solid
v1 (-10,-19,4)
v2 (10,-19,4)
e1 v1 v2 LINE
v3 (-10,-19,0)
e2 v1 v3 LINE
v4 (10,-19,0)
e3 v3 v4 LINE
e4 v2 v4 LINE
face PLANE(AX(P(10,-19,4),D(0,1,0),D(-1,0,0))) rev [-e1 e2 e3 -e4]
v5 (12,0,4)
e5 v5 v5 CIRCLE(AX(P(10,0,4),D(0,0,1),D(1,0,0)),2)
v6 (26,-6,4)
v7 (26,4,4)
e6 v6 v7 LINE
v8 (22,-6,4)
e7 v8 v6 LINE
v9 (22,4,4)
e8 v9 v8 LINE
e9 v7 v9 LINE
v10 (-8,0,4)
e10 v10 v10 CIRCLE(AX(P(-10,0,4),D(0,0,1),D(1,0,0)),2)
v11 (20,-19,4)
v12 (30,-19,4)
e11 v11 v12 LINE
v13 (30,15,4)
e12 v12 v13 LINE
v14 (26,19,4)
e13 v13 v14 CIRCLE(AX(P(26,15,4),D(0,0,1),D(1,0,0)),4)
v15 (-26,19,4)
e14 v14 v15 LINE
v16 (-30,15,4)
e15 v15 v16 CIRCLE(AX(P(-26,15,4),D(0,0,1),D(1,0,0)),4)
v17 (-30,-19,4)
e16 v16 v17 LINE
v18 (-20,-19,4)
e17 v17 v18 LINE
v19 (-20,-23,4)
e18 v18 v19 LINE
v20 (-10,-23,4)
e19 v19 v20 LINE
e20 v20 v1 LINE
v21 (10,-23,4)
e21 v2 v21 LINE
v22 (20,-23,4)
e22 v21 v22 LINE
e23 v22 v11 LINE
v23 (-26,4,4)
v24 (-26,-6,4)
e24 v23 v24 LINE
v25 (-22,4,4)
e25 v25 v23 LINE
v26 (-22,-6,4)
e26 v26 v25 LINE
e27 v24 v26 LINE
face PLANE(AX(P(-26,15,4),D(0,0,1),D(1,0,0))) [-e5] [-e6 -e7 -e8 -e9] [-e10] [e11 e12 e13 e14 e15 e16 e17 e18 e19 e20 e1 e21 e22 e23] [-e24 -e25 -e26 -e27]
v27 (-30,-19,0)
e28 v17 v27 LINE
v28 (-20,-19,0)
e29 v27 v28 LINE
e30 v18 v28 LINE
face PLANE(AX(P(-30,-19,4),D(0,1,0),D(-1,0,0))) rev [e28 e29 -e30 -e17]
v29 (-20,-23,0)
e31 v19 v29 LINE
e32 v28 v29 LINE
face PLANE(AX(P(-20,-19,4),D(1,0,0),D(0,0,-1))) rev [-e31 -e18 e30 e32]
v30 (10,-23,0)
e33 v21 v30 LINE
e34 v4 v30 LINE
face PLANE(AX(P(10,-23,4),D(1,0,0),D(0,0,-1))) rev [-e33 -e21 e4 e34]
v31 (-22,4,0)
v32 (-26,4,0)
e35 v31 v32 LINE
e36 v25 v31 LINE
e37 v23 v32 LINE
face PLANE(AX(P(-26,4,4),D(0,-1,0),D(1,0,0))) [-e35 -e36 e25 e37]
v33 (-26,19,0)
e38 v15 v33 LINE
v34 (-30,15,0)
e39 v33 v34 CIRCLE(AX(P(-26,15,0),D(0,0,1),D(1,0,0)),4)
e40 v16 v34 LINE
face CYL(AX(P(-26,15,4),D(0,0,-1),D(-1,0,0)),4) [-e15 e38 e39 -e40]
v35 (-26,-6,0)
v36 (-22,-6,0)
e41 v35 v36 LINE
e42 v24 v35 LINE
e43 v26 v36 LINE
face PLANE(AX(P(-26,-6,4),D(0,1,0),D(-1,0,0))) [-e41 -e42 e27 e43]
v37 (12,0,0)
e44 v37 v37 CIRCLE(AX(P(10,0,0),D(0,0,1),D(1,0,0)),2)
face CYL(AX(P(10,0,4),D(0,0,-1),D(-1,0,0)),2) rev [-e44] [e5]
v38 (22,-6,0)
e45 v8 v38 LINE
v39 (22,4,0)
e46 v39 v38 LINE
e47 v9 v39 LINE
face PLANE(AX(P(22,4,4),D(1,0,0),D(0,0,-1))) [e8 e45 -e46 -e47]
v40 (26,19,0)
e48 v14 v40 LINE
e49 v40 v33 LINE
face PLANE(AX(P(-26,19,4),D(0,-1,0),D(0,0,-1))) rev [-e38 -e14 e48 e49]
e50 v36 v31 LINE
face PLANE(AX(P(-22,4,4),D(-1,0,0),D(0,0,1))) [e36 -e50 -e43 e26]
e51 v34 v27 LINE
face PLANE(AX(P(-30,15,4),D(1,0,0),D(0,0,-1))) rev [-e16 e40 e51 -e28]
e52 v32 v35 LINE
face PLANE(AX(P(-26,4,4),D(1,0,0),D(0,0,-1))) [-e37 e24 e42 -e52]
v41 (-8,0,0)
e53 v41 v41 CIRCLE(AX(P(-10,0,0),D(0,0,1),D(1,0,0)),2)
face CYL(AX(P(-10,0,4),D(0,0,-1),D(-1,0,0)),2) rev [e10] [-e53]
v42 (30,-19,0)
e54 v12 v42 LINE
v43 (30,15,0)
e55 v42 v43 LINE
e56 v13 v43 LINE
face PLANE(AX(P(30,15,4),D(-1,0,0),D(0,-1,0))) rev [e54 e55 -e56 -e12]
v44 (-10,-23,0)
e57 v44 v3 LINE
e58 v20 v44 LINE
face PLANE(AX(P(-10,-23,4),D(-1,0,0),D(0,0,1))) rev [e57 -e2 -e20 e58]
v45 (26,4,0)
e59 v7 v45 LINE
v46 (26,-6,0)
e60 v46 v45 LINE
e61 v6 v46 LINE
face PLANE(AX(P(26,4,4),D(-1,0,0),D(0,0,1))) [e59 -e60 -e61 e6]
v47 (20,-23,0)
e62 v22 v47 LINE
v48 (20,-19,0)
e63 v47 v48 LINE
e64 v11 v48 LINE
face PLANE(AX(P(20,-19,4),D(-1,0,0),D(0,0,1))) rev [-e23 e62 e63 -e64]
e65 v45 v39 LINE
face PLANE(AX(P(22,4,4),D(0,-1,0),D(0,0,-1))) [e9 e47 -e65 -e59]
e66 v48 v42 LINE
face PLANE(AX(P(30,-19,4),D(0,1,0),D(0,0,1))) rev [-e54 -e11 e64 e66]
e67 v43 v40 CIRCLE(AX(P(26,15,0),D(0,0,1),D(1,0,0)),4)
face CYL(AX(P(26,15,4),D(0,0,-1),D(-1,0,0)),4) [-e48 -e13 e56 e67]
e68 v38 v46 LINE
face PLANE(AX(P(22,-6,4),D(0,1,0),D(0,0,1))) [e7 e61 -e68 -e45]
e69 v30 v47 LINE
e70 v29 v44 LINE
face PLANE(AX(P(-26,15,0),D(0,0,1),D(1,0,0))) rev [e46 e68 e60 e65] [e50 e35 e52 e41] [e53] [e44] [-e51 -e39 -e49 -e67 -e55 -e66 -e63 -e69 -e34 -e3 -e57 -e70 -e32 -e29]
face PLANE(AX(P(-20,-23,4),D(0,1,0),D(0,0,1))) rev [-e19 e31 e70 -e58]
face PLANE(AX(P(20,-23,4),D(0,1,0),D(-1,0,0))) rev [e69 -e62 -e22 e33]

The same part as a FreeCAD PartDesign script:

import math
import FreeCAD as App
import Part
import Sketcher
Q = App.Units.Quantity


def add_polygon(sketch, points):
    """Adds a closed chain of lines whose ends are joined by coincident constraints."""
    first, n = sketch.GeometryCount, len(points)
    for a, b in zip(points, points[1:] + points[:1]):
        sketch.addGeometry(Part.LineSegment(App.Vector(*a, 0), App.Vector(*b, 0)), False)
    for i in range(n):
        sketch.addConstraint(Sketcher.Constraint("Coincident", first + i, 2, first + (i + 1) % n, 1))

doc = App.newDocument("Part")
body = doc.addObject("PartDesign::Body", "Body")

sketch1 = body.newObject("Sketcher::SketchObject", "Sketch")
sketch1.AttachmentSupport = (doc.getObject("XY_Plane"), [""])
sketch1.MapMode = "FlatFace"
sketch1.addGeometry(Part.LineSegment(App.Vector(-30, -19, 0), App.Vector(-20, -19, 0)), False)
sketch1.addGeometry(Part.LineSegment(App.Vector(-20, -19, 0), App.Vector(-20, -23, 0)), False)
sketch1.addGeometry(Part.LineSegment(App.Vector(-20, -23, 0), App.Vector(-10, -23, 0)), False)
sketch1.addGeometry(Part.LineSegment(App.Vector(-10, -23, 0), App.Vector(-10, -19, 0)), False)
sketch1.addGeometry(Part.LineSegment(App.Vector(-10, -19, 0), App.Vector(10, -19, 0)), False)
sketch1.addGeometry(Part.LineSegment(App.Vector(10, -19, 0), App.Vector(10, -23, 0)), False)
sketch1.addGeometry(Part.LineSegment(App.Vector(10, -23, 0), App.Vector(20, -23, 0)), False)
sketch1.addGeometry(Part.LineSegment(App.Vector(20, -23, 0), App.Vector(20, -19, 0)), False)
sketch1.addGeometry(Part.LineSegment(App.Vector(20, -19, 0), App.Vector(30, -19, 0)), False)
sketch1.addGeometry(Part.LineSegment(App.Vector(30, -19, 0), App.Vector(30, 15, 0)), False)
sketch1.addGeometry(Part.ArcOfCircle(Part.Circle(App.Vector(26, 15, 0), App.Vector(0, 0, 1), 4), math.radians(0), math.radians(90)), False)
sketch1.addGeometry(Part.LineSegment(App.Vector(26, 19, 0), App.Vector(-26, 19, 0)), False)
sketch1.addGeometry(Part.ArcOfCircle(Part.Circle(App.Vector(-26, 15, 0), App.Vector(0, 0, 1), 4), math.radians(90), math.radians(180)), False)
sketch1.addGeometry(Part.LineSegment(App.Vector(-30, 15, 0), App.Vector(-30, -19, 0)), False)
add_polygon(sketch1, [(-22, -6), (-26, -6), (-26, 4), (-22, 4)])
sketch1.addGeometry(Part.Circle(App.Vector(-10, 0, 0), App.Vector(0, 0, 1), 2), False)
sketch1.addGeometry(Part.Circle(App.Vector(10, 0, 0), App.Vector(0, 0, 1), 2), False)
add_polygon(sketch1, [(26, -6), (22, -6), (22, 4), (26, 4)])
sketch1.addConstraint([
    Sketcher.Constraint("Coincident", 0, 2, 1, 1),
    Sketcher.Constraint("Coincident", 1, 2, 2, 1),
    Sketcher.Constraint("Coincident", 2, 2, 3, 1),
    Sketcher.Constraint("Coincident", 3, 2, 4, 1),
    Sketcher.Constraint("Coincident", 4, 2, 5, 1),
    Sketcher.Constraint("Coincident", 5, 2, 6, 1),
    Sketcher.Constraint("Coincident", 6, 2, 7, 1),
    Sketcher.Constraint("Coincident", 7, 2, 8, 1),
    Sketcher.Constraint("Coincident", 8, 2, 9, 1),
    Sketcher.Constraint("Tangent", 9, 2, 10, 1),
    Sketcher.Constraint("Tangent", 10, 2, 11, 1),
    Sketcher.Constraint("Tangent", 11, 2, 12, 1),
    Sketcher.Constraint("Tangent", 12, 2, 13, 1),
    Sketcher.Constraint("Coincident", 13, 2, 0, 1),
    Sketcher.Constraint("Horizontal", 0),
    Sketcher.Constraint("Vertical", 1),
    Sketcher.Constraint("Horizontal", 2),
    Sketcher.Constraint("Vertical", 3),
    Sketcher.Constraint("Horizontal", 4),
    Sketcher.Constraint("Vertical", 5),
    Sketcher.Constraint("Horizontal", 6),
    Sketcher.Constraint("Vertical", 7),
    Sketcher.Constraint("Horizontal", 8),
    Sketcher.Constraint("Vertical", 9),
    Sketcher.Constraint("Horizontal", 11),
    Sketcher.Constraint("Vertical", 13),
    Sketcher.Constraint("Horizontal", 14),
    Sketcher.Constraint("Vertical", 15),
    Sketcher.Constraint("Horizontal", 16),
    Sketcher.Constraint("Vertical", 17),
    Sketcher.Constraint("Horizontal", 20),
    Sketcher.Constraint("Vertical", 21),
    Sketcher.Constraint("Horizontal", 22),
    Sketcher.Constraint("Vertical", 23),
    Sketcher.Constraint("Equal", 10, 12),
    Sketcher.Constraint("Equal", 18, 19),
    Sketcher.Constraint("Symmetric", 18, 3, 19, 3, -1, 1),
    Sketcher.Constraint("Symmetric", 2, 2, 5, 2, -2),
    Sketcher.Constraint("Symmetric", 0, 2, 7, 2, -2),
    Sketcher.Constraint("Symmetric", 17, 2, 20, 2, -2),
    Sketcher.Constraint("Symmetric", 15, 2, 22, 2, -2),
    Sketcher.Constraint("PointOnObject", 18, 3, -1),
    Sketcher.Constraint("Horizontal", 0, 2, 3, 2),
    Sketcher.Constraint("Vertical", 18, 3, 2, 2),
    Sketcher.Constraint("Vertical", 11, 2, 14, 2),
    Sketcher.Constraint("Vertical", 10, 2, 22, 2),
    Sketcher.Constraint("Equal", 0, 2),
    Sketcher.Constraint("Equal", 22, 1),
    Sketcher.Constraint("Equal", 8, 15),
    Sketcher.Constraint("Diameter", 18, Q("4 mm")),
    Sketcher.Constraint("Radius", 10, Q("4 mm")),
    Sketcher.Constraint("DistanceX", 0, 1, 0, 2, Q("10 mm")),
    Sketcher.Constraint("DistanceX", 4, 1, 4, 2, Q("20 mm")),
    Sketcher.Constraint("DistanceX", 14, 2, 14, 1, Q("4 mm")),
    Sketcher.Constraint("DistanceY", 9, 1, 9, 2, Q("34 mm")),
    Sketcher.Constraint("DistanceY", -1, 1, 10, 3, Q("15 mm")),
    Sketcher.Constraint("DistanceY", 14, 2, -1, 1, Q("6 mm")),
])
pad1 = body.newObject("PartDesign::Pad", "Pad")
pad1.Profile = sketch1
pad1.Length = 4

doc.recompute()
